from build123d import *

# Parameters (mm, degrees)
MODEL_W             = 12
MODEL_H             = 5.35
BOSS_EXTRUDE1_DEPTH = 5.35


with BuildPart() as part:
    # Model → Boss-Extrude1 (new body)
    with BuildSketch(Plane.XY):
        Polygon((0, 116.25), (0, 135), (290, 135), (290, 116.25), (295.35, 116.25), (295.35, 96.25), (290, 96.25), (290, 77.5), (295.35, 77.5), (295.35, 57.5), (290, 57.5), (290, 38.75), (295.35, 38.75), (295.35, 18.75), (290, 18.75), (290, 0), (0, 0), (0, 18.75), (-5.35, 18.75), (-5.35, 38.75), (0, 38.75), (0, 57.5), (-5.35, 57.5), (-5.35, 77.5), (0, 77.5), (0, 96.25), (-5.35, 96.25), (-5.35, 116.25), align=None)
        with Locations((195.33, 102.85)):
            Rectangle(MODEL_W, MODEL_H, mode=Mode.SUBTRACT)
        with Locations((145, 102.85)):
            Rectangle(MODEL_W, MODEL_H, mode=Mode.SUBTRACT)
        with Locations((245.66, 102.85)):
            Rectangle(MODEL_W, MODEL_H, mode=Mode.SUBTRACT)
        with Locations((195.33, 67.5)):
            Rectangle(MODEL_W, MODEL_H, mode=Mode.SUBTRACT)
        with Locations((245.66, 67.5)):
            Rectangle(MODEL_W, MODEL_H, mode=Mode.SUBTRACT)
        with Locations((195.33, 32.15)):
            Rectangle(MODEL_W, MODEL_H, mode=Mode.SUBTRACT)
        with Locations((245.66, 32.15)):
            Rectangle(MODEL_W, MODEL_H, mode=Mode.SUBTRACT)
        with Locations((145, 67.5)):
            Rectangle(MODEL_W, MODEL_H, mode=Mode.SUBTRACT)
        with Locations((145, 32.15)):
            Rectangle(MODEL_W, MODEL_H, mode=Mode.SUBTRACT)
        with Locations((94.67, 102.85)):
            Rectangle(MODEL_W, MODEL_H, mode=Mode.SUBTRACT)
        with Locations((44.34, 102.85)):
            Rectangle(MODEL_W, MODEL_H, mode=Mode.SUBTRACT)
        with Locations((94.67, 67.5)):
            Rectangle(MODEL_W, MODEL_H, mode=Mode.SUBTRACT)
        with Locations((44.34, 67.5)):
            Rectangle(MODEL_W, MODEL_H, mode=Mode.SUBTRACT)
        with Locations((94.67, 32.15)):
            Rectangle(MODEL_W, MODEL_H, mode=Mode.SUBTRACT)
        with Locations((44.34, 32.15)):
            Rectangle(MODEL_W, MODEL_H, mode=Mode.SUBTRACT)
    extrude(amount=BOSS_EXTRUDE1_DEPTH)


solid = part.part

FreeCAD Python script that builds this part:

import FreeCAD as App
import Part
import Sketcher

V = App.Vector
Q = App.Units.Quantity


def add_polygon(sketch, points):
    """Adds a closed chain of lines whose ends are joined by coincident constraints."""
    first, n = sketch.GeometryCount, len(points)
    for a, b in zip(points, points[1:] + points[:1]):
        sketch.addGeometry(Part.LineSegment(App.Vector(*a, 0), App.Vector(*b, 0)), False)
    for i in range(n):
        sketch.addConstraint(Sketcher.Constraint("Coincident", first + i, 2, first + (i + 1) % n, 1))

doc = App.newDocument("Part")
params = doc.addObject("Spreadsheet::Sheet", "Params")
for row, (alias, value) in enumerate([
    ("sketch1_width", "290 mm"),
    ("sketch1_width2", "12 mm"),
    ("sketch1_height", "20 mm"),
    ("sketch1_width3", "5.35 mm"),
    ("pad1_length", "5.35 mm"),
], start=1):
    params.set(f"A{row}", alias)
    params.set(f"B{row}", "=" + value)
    params.setAlias(f"B{row}", alias)

body = doc.addObject("PartDesign::Body", "Body")

sketch1 = body.newObject("Sketcher::SketchObject", "Sketch")
sketch1.AttachmentSupport = (doc.getObject("XY_Plane"), [""])
sketch1.MapMode = "FlatFace"
add_polygon(sketch1, [(0, 135), (0, 116.25), (-5.35, 116.25), (-5.35, 96.25), (0, 96.25), (0, 77.5), (-5.35, 77.5), (-5.35, 57.5), (0, 57.5), (0, 38.75), (-5.35, 38.75), (-5.35, 18.75), (0, 18.75), (0, 0), (290, 0), (290, 18.75), (295.35, 18.75), (295.35, 38.75), (290, 38.75), (290, 57.5), (295.35, 57.5), (295.35, 77.5), (290, 77.5), (290, 96.25), (295.35, 96.25), (295.35, 116.25), (290, 116.25), (290, 135)])
add_polygon(sketch1, [(239.66, 29.475), (239.66, 34.825), (251.66, 34.825), (251.66, 29.475)])
add_polygon(sketch1, [(189.33, 29.475), (189.33, 34.825), (201.33, 34.825), (201.33, 29.475)])
add_polygon(sketch1, [(139, 29.475), (139, 34.825), (151, 34.825), (151, 29.475)])
add_polygon(sketch1, [(88.67, 29.475), (88.67, 34.825), (100.67, 34.825), (100.67, 29.475)])
add_polygon(sketch1, [(38.34, 29.475), (38.34, 34.825), (50.34, 34.825), (50.34, 29.475)])
add_polygon(sketch1, [(239.66, 64.825), (239.66, 70.175), (251.66, 70.175), (251.66, 64.825)])
add_polygon(sketch1, [(189.33, 64.825), (189.33, 70.175), (201.33, 70.175), (201.33, 64.825)])
add_polygon(sketch1, [(239.66, 100.175), (239.66, 105.525), (251.66, 105.525), (251.66, 100.175)])
add_polygon(sketch1, [(189.33, 100.175), (189.33, 105.525), (201.33, 105.525), (201.33, 100.175)])
add_polygon(sketch1, [(139, 64.825), (139, 70.175), (151, 70.175), (151, 64.825)])
add_polygon(sketch1, [(88.67, 64.825), (88.67, 70.175), (100.67, 70.175), (100.67, 64.825)])
add_polygon(sketch1, [(38.34, 64.825), (38.34, 70.175), (50.34, 70.175), (50.34, 64.825)])
add_polygon(sketch1, [(139, 100.175), (139, 105.525), (151, 105.525), (151, 100.175)])
add_polygon(sketch1, [(88.67, 100.175), (88.67, 105.525), (100.67, 105.525), (100.67, 100.175)])
add_polygon(sketch1, [(38.34, 100.175), (38.34, 105.525), (50.34, 105.525), (50.34, 100.175)])
sketch1.addConstraint(Sketcher.Constraint("Vertical", 0))
sketch1.addConstraint(Sketcher.Constraint("Horizontal", 1))
sketch1.addConstraint(Sketcher.Constraint("Vertical", 2))
sketch1.addConstraint(Sketcher.Constraint("Horizontal", 3))
sketch1.addConstraint(Sketcher.Constraint("Vertical", 4))
sketch1.addConstraint(Sketcher.Constraint("Horizontal", 5))
sketch1.addConstraint(Sketcher.Constraint("Vertical", 6))
sketch1.addConstraint(Sketcher.Constraint("Horizontal", 7))
sketch1.addConstraint(Sketcher.Constraint("Vertical", 8))
sketch1.addConstraint(Sketcher.Constraint("Horizontal", 9))
sketch1.addConstraint(Sketcher.Constraint("Vertical", 10))
sketch1.addConstraint(Sketcher.Constraint("Horizontal", 11))
sketch1.addConstraint(Sketcher.Constraint("Vertical", 12))
sketch1.addConstraint(Sketcher.Constraint("Horizontal", 13))
sketch1.addConstraint(Sketcher.Constraint("Vertical", 14))
sketch1.addConstraint(Sketcher.Constraint("Horizontal", 15))
sketch1.addConstraint(Sketcher.Constraint("Vertical", 16))
sketch1.addConstraint(Sketcher.Constraint("Horizontal", 17))
sketch1.addConstraint(Sketcher.Constraint("Vertical", 18))
sketch1.addConstraint(Sketcher.Constraint("Horizontal", 19))
sketch1.addConstraint(Sketcher.Constraint("Vertical", 20))
sketch1.addConstraint(Sketcher.Constraint("Horizontal", 21))
sketch1.addConstraint(Sketcher.Constraint("Vertical", 22))
sketch1.addConstraint(Sketcher.Constraint("Horizontal", 23))
sketch1.addConstraint(Sketcher.Constraint("Vertical", 24))
sketch1.addConstraint(Sketcher.Constraint("Horizontal", 25))
sketch1.addConstraint(Sketcher.Constraint("Vertical", 26))
sketch1.addConstraint(Sketcher.Constraint("Horizontal", 27))
sketch1.addConstraint(Sketcher.Constraint("Vertical", 28))
sketch1.addConstraint(Sketcher.Constraint("Horizontal", 29))
sketch1.addConstraint(Sketcher.Constraint("Vertical", 30))
sketch1.addConstraint(Sketcher.Constraint("Horizontal", 31))
sketch1.addConstraint(Sketcher.Constraint("Vertical", 32))
sketch1.addConstraint(Sketcher.Constraint("Horizontal", 33))
sketch1.addConstraint(Sketcher.Constraint("Vertical", 34))
sketch1.addConstraint(Sketcher.Constraint("Horizontal", 35))
sketch1.addConstraint(Sketcher.Constraint("Vertical", 36))
sketch1.addConstraint(Sketcher.Constraint("Horizontal", 37))
sketch1.addConstraint(Sketcher.Constraint("Vertical", 38))
sketch1.addConstraint(Sketcher.Constraint("Horizontal", 39))
sketch1.addConstraint(Sketcher.Constraint("Vertical", 40))
sketch1.addConstraint(Sketcher.Constraint("Horizontal", 41))
sketch1.addConstraint(Sketcher.Constraint("Vertical", 42))
sketch1.addConstraint(Sketcher.Constraint("Horizontal", 43))
sketch1.addConstraint(Sketcher.Constraint("Vertical", 44))
sketch1.addConstraint(Sketcher.Constraint("Horizontal", 45))
sketch1.addConstraint(Sketcher.Constraint("Vertical", 46))
sketch1.addConstraint(Sketcher.Constraint("Horizontal", 47))
sketch1.addConstraint(Sketcher.Constraint("Vertical", 48))
sketch1.addConstraint(Sketcher.Constraint("Horizontal", 49))
sketch1.addConstraint(Sketcher.Constraint("Vertical", 50))
sketch1.addConstraint(Sketcher.Constraint("Horizontal", 51))
sketch1.addConstraint(Sketcher.Constraint("Vertical", 52))
sketch1.addConstraint(Sketcher.Constraint("Horizontal", 53))
sketch1.addConstraint(Sketcher.Constraint("Vertical", 54))
sketch1.addConstraint(Sketcher.Constraint("Horizontal", 55))
sketch1.addConstraint(Sketcher.Constraint("Vertical", 56))
sketch1.addConstraint(Sketcher.Constraint("Horizontal", 57))
sketch1.addConstraint(Sketcher.Constraint("Vertical", 58))
sketch1.addConstraint(Sketcher.Constraint("Horizontal", 59))
sketch1.addConstraint(Sketcher.Constraint("Vertical", 60))
sketch1.addConstraint(Sketcher.Constraint("Horizontal", 61))
sketch1.addConstraint(Sketcher.Constraint("Vertical", 62))
sketch1.addConstraint(Sketcher.Constraint("Horizontal", 63))
sketch1.addConstraint(Sketcher.Constraint("Vertical", 64))
sketch1.addConstraint(Sketcher.Constraint("Horizontal", 65))
sketch1.addConstraint(Sketcher.Constraint("Vertical", 66))
sketch1.addConstraint(Sketcher.Constraint("Horizontal", 67))
sketch1.addConstraint(Sketcher.Constraint("Vertical", 68))
sketch1.addConstraint(Sketcher.Constraint("Horizontal", 69))
sketch1.addConstraint(Sketcher.Constraint("Vertical", 70))
sketch1.addConstraint(Sketcher.Constraint("Horizontal", 71))
sketch1.addConstraint(Sketcher.Constraint("Vertical", 72))
sketch1.addConstraint(Sketcher.Constraint("Horizontal", 73))
sketch1.addConstraint(Sketcher.Constraint("Vertical", 74))
sketch1.addConstraint(Sketcher.Constraint("Horizontal", 75))
sketch1.addConstraint(Sketcher.Constraint("Vertical", 76))
sketch1.addConstraint(Sketcher.Constraint("Horizontal", 77))
sketch1.addConstraint(Sketcher.Constraint("Vertical", 78))
sketch1.addConstraint(Sketcher.Constraint("Horizontal", 79))
sketch1.addConstraint(Sketcher.Constraint("Vertical", 80))
sketch1.addConstraint(Sketcher.Constraint("Horizontal", 81))
sketch1.addConstraint(Sketcher.Constraint("Vertical", 82))
sketch1.addConstraint(Sketcher.Constraint("Horizontal", 83))
sketch1.addConstraint(Sketcher.Constraint("Vertical", 84))
sketch1.addConstraint(Sketcher.Constraint("Horizontal", 85))
sketch1.addConstraint(Sketcher.Constraint("Vertical", 86))
sketch1.addConstraint(Sketcher.Constraint("Horizontal", 87))
sketch1.addConstraint(Sketcher.Constraint("Coincident", 12, 2, -1, 1))
sketch1.addConstraint(Sketcher.Constraint("PointOnObject", 0, 2, -2))
sketch1.addConstraint(Sketcher.Constraint("PointOnObject", 3, 2, -2))
sketch1.addConstraint(Sketcher.Constraint("PointOnObject", 7, 2, -2))
sketch1.addConstraint(Sketcher.Constraint("Horizontal", 11, 2, 14, 2))
sketch1.addConstraint(Sketcher.Constraint("Horizontal", 9, 2, 16, 2))
sketch1.addConstraint(Sketcher.Constraint("Horizontal", 7, 2, 18, 2))
sketch1.addConstraint(Sketcher.Constraint("Horizontal", 5, 2, 20, 2))
sketch1.addConstraint(Sketcher.Constraint("Horizontal", 3, 2, 22, 2))
sketch1.addConstraint(Sketcher.Constraint("Horizontal", 1, 2, 24, 2))
sketch1.addConstraint(Sketcher.Constraint("Horizontal", 29, 2, 32, 2))
sketch1.addConstraint(Sketcher.Constraint("Horizontal", 31, 2, 34, 2))
sketch1.addConstraint(Sketcher.Constraint("Horizontal", 33, 2, 36, 2))
sketch1.addConstraint(Sketcher.Constraint("Horizontal", 35, 2, 38, 2))
sketch1.addConstraint(Sketcher.Constraint("Horizontal", 37, 2, 40, 2))
sketch1.addConstraint(Sketcher.Constraint("Horizontal", 39, 2, 42, 2))
sketch1.addConstraint(Sketcher.Constraint("Horizontal", 41, 2, 44, 2))
sketch1.addConstraint(Sketcher.Constraint("Horizontal", 43, 2, 46, 2))
sketch1.addConstraint(Sketcher.Constraint("Horizontal", 49, 2, 52, 2))
sketch1.addConstraint(Sketcher.Constraint("Horizontal", 51, 2, 54, 2))
sketch1.addConstraint(Sketcher.Constraint("Horizontal", 57, 2, 60, 2))
sketch1.addConstraint(Sketcher.Constraint("Horizontal", 59, 2, 62, 2))
sketch1.addConstraint(Sketcher.Constraint("Horizontal", 53, 2, 64, 2))
sketch1.addConstraint(Sketcher.Constraint("Horizontal", 55, 2, 66, 2))
sketch1.addConstraint(Sketcher.Constraint("Horizontal", 65, 2, 68, 2))
sketch1.addConstraint(Sketcher.Constraint("Horizontal", 67, 2, 70, 2))
sketch1.addConstraint(Sketcher.Constraint("Horizontal", 69, 2, 72, 2))
sketch1.addConstraint(Sketcher.Constraint("Horizontal", 71, 2, 74, 2))
sketch1.addConstraint(Sketcher.Constraint("Horizontal", 61, 2, 76, 2))
sketch1.addConstraint(Sketcher.Constraint("Horizontal", 63, 2, 78, 2))
sketch1.addConstraint(Sketcher.Constraint("Horizontal", 77, 2, 80, 2))
sketch1.addConstraint(Sketcher.Constraint("Horizontal", 79, 2, 82, 2))
sketch1.addConstraint(Sketcher.Constraint("Horizontal", 81, 2, 84, 2))
sketch1.addConstraint(Sketcher.Constraint("Horizontal", 83, 2, 86, 2))
sketch1.addConstraint(Sketcher.Constraint("Vertical", 2, 2, 5, 2))
sketch1.addConstraint(Sketcher.Constraint("Vertical", 6, 2, 9, 2))
sketch1.addConstraint(Sketcher.Constraint("Vertical", 14, 2, 17, 2))
sketch1.addConstraint(Sketcher.Constraint("Vertical", 16, 2, 19, 2))
sketch1.addConstraint(Sketcher.Constraint("Vertical", 18, 2, 21, 2))
sketch1.addConstraint(Sketcher.Constraint("Vertical", 20, 2, 23, 2))
sketch1.addConstraint(Sketcher.Constraint("Vertical", 22, 2, 25, 2))
sketch1.addConstraint(Sketcher.Constraint("Vertical", 31, 2, 48, 2))
sketch1.addConstraint(Sketcher.Constraint("Vertical", 30, 2, 49, 2))
sketch1.addConstraint(Sketcher.Constraint("Vertical", 35, 2, 52, 2))
sketch1.addConstraint(Sketcher.Constraint("Vertical", 34, 2, 53, 2))
sketch1.addConstraint(Sketcher.Constraint("Vertical", 51, 2, 56, 2))
sketch1.addConstraint(Sketcher.Constraint("Vertical", 50, 2, 57, 2))
sketch1.addConstraint(Sketcher.Constraint("Vertical", 55, 2, 60, 2))
sketch1.addConstraint(Sketcher.Constraint("Vertical", 54, 2, 61, 2))
sketch1.addConstraint(Sketcher.Constraint("Vertical", 39, 2, 64, 2))
sketch1.addConstraint(Sketcher.Constraint("Vertical", 38, 2, 65, 2))
sketch1.addConstraint(Sketcher.Constraint("Vertical", 43, 2, 68, 2))
sketch1.addConstraint(Sketcher.Constraint("Vertical", 42, 2, 69, 2))
sketch1.addConstraint(Sketcher.Constraint("Vertical", 47, 2, 72, 2))
sketch1.addConstraint(Sketcher.Constraint("Vertical", 46, 2, 73, 2))
sketch1.addConstraint(Sketcher.Constraint("Vertical", 67, 2, 76, 2))
sketch1.addConstraint(Sketcher.Constraint("Vertical", 66, 2, 77, 2))
sketch1.addConstraint(Sketcher.Constraint("Vertical", 71, 2, 80, 2))
sketch1.addConstraint(Sketcher.Constraint("Vertical", 70, 2, 81, 2))
sketch1.addConstraint(Sketcher.Constraint("Vertical", 75, 2, 84, 2))
sketch1.addConstraint(Sketcher.Constraint("Vertical", 74, 2, 85, 2))
sketch1.addConstraint(Sketcher.Constraint("Equal", 11, 15))
sketch1.addConstraint(Sketcher.Constraint("Equal", 31, 33))
sketch1.addConstraint(Sketcher.Constraint("Equal", 35, 37))
sketch1.addConstraint(Sketcher.Constraint("Equal", 39, 41))
sketch1.addConstraint(Sketcher.Constraint("Equal", 43, 45))
sketch1.addConstraint(Sketcher.Constraint("Equal", 0, 4))
sketch1.addConstraint(Sketcher.Constraint("Equal", 2, 6))
sketch1.addConstraint(Sketcher.Constraint("Equal", 4, 8))
sketch1.addConstraint(Sketcher.Constraint("Equal", 6, 10))
sketch1.addConstraint(Sketcher.Constraint("Equal", 8, 12))
sketch1.addConstraint(Sketcher.Constraint("Equal", 25, 28))
sketch1.addConstraint(Sketcher.Constraint("Equal", 46, 48))
sketch1.addConstraint(Sketcher.Constraint("Equal", 54, 56))
sketch1.addConstraint(Sketcher.Constraint("DistanceX", 13, 1, 13, 2, Q("290 mm")))
sketch1.addConstraint(Sketcher.Constraint("DistanceX", 29, 1, 29, 2, Q("12 mm")))
sketch1.addConstraint(Sketcher.Constraint("DistanceY", 2, 2, 2, 1, Q("20 mm")))
sketch1.addConstraint(Sketcher.Constraint("DistanceY", -1, 1, 26, 2, Q("135 mm")))
sketch1.addConstraint(Sketcher.Constraint("DistanceX", -1, 1, 36, 2, Q("139 mm")))
sketch1.addConstraint(Sketcher.Constraint("DistanceX", 1, 2, 1, 1, Q("5.35 mm")))
sketch1.addConstraint(Sketcher.Constraint("DistanceX", -1, 1, 28, 2, Q("239.66 mm")))
sketch1.addConstraint(Sketcher.Constraint("DistanceX", -1, 1, 32, 2, Q("189.33 mm")))
sketch1.addConstraint(Sketcher.Constraint("DistanceX", -1, 1, 40, 2, Q("88.67 mm")))
sketch1.addConstraint(Sketcher.Constraint("DistanceX", -1, 1, 44, 2, Q("38.34 mm")))
sketch1.addConstraint(Sketcher.Constraint("DistanceY", -1, 1, 28, 2, Q("34.825 mm")))
sketch1.addConstraint(Sketcher.Constraint("DistanceY", -1, 1, 48, 2, Q("70.175 mm")))
sketch1.addConstraint(Sketcher.Constraint("DistanceY", -1, 1, 56, 2, Q("105.525 mm")))
sketch1.setExpression("Constraints[250]", "Params.sketch1_width")
sketch1.setExpression("Constraints[251]", "Params.sketch1_width2")
sketch1.setExpression("Constraints[252]", "Params.sketch1_height")
sketch1.setExpression("Constraints[255]", "Params.sketch1_width3")
pad1 = body.newObject("PartDesign::Pad", "Pad")
pad1.Profile = sketch1
pad1.setExpression("Length", "Params.pad1_length")

doc.recompute()
